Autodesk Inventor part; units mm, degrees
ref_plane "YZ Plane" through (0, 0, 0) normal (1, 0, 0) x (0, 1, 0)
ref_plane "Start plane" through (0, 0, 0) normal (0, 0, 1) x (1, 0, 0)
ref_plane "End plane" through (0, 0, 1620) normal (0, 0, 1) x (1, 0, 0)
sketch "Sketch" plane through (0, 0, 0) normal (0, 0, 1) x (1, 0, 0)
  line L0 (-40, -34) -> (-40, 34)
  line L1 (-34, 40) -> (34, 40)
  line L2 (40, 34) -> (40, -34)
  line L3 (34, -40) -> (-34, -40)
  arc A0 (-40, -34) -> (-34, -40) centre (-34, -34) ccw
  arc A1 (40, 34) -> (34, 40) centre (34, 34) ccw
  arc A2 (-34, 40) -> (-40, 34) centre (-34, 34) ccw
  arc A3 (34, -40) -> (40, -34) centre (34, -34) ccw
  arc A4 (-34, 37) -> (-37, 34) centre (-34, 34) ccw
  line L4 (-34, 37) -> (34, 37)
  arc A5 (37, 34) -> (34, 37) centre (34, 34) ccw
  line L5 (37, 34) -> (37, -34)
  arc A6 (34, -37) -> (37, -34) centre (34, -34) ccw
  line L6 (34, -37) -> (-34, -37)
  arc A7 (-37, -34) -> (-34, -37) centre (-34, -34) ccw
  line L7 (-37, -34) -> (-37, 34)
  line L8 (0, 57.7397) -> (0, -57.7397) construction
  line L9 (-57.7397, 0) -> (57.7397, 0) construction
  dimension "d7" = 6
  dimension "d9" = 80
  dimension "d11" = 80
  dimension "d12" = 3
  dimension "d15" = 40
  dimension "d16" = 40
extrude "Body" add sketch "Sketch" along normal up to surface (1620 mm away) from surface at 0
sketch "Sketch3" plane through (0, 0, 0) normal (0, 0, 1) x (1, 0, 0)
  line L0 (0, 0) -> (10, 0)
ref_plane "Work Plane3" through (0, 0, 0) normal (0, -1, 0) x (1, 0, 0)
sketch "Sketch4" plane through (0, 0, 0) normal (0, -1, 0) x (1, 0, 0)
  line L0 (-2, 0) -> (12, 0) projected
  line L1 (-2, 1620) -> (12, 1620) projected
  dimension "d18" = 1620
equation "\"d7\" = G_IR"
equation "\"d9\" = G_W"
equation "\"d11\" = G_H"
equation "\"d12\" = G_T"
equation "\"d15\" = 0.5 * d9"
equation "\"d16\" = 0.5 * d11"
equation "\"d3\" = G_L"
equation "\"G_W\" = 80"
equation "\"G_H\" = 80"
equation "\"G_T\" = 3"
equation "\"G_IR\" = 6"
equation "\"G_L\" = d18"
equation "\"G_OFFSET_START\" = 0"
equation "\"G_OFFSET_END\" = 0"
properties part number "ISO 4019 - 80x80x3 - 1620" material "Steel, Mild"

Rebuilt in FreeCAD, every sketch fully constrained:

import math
import FreeCAD as App
import Part
import Sketcher
from FreeCAD import Vector

doc = App.newDocument("Part")
body = doc.addObject("PartDesign::Body", "Body")

sketch1 = body.newObject("Sketcher::SketchObject", "Sketch")
sketch1.AttachmentSupport = (doc.getObject("XY_Plane"), [""])
sketch1.MapMode = "FlatFace"
sketch1.addGeometry(Part.LineSegment(Vector(-40, 34, 0), Vector(-40, -34, 0)), False)
sketch1.addGeometry(Part.ArcOfCircle(Part.Circle(Vector(-34, -34, 0), Vector(0, 0, 1), 6), math.radians(180), math.radians(270)), False)
sketch1.addGeometry(Part.LineSegment(Vector(-34, -40, 0), Vector(34, -40, 0)), False)
sketch1.addGeometry(Part.ArcOfCircle(Part.Circle(Vector(34, -34, 0), Vector(0, 0, 1), 6), math.radians(-90), math.radians(0)), False)
sketch1.addGeometry(Part.LineSegment(Vector(40, -34, 0), Vector(40, 34, 0)), False)
sketch1.addGeometry(Part.ArcOfCircle(Part.Circle(Vector(34, 34, 0), Vector(0, 0, 1), 6), math.radians(0), math.radians(90)), False)
sketch1.addGeometry(Part.LineSegment(Vector(34, 40, 0), Vector(-34, 40, 0)), False)
sketch1.addGeometry(Part.ArcOfCircle(Part.Circle(Vector(-34, 34, 0), Vector(0, 0, 1), 6), math.radians(90), math.radians(180)), False)
sketch1.addGeometry(Part.ArcOfCircle(Part.Circle(Vector(-34, 34, 0), Vector(0, 0, 1), 3), math.radians(90), math.radians(180)), False)
sketch1.addGeometry(Part.LineSegment(Vector(-34, 37, 0), Vector(34, 37, 0)), False)
sketch1.addGeometry(Part.ArcOfCircle(Part.Circle(Vector(34, 34, 0), Vector(0, 0, 1), 3), math.radians(0), math.radians(90)), False)
sketch1.addGeometry(Part.LineSegment(Vector(37, 34, 0), Vector(37, -34, 0)), False)
sketch1.addGeometry(Part.ArcOfCircle(Part.Circle(Vector(34, -34, 0), Vector(0, 0, 1), 3), math.radians(-90), math.radians(0)), False)
sketch1.addGeometry(Part.LineSegment(Vector(34, -37, 0), Vector(-34, -37, 0)), False)
sketch1.addGeometry(Part.ArcOfCircle(Part.Circle(Vector(-34, -34, 0), Vector(0, 0, 1), 3), math.radians(180), math.radians(270)), False)
sketch1.addGeometry(Part.LineSegment(Vector(-37, -34, 0), Vector(-37, 34, 0)), False)
sketch1.addConstraint(Sketcher.Constraint("Tangent", 0, 2, 1, 1))
sketch1.addConstraint(Sketcher.Constraint("Tangent", 1, 2, 2, 1))
sketch1.addConstraint(Sketcher.Constraint("Tangent", 2, 2, 3, 1))
sketch1.addConstraint(Sketcher.Constraint("Tangent", 3, 2, 4, 1))
sketch1.addConstraint(Sketcher.Constraint("Tangent", 4, 2, 5, 1))
sketch1.addConstraint(Sketcher.Constraint("Tangent", 5, 2, 6, 1))
sketch1.addConstraint(Sketcher.Constraint("Tangent", 6, 2, 7, 1))
sketch1.addConstraint(Sketcher.Constraint("Tangent", 7, 2, 0, 1))
sketch1.addConstraint(Sketcher.Constraint("Tangent", 8, 1, 9, 1))
sketch1.addConstraint(Sketcher.Constraint("Tangent", 9, 2, 10, 2))
sketch1.addConstraint(Sketcher.Constraint("Tangent", 10, 1, 11, 1))
sketch1.addConstraint(Sketcher.Constraint("Tangent", 11, 2, 12, 2))
sketch1.addConstraint(Sketcher.Constraint("Tangent", 12, 1, 13, 1))
sketch1.addConstraint(Sketcher.Constraint("Tangent", 13, 2, 14, 2))
sketch1.addConstraint(Sketcher.Constraint("Tangent", 14, 1, 15, 1))
sketch1.addConstraint(Sketcher.Constraint("Tangent", 15, 2, 8, 2))
sketch1.addConstraint(Sketcher.Constraint("Vertical", 0))
sketch1.addConstraint(Sketcher.Constraint("Horizontal", 2))
sketch1.addConstraint(Sketcher.Constraint("Vertical", 4))
sketch1.addConstraint(Sketcher.Constraint("Horizontal", 6))
sketch1.addConstraint(Sketcher.Constraint("Horizontal", 9))
sketch1.addConstraint(Sketcher.Constraint("Vertical", 11))
sketch1.addConstraint(Sketcher.Constraint("Horizontal", 13))
sketch1.addConstraint(Sketcher.Constraint("Vertical", 15))
sketch1.addConstraint(Sketcher.Constraint("Coincident", 8, 3, 7, 3))
sketch1.addConstraint(Sketcher.Constraint("Coincident", 10, 3, 5, 3))
sketch1.addConstraint(Sketcher.Constraint("Coincident", 12, 3, 3, 3))
sketch1.addConstraint(Sketcher.Constraint("Equal", 1, 3))
sketch1.addConstraint(Sketcher.Constraint("Equal", 3, 5))
sketch1.addConstraint(Sketcher.Constraint("Equal", 5, 7))
sketch1.addConstraint(Sketcher.Constraint("Equal", 12, 14))
sketch1.addConstraint(Sketcher.Constraint("Symmetric", 1, 3, 5, 3, -1, 1))
sketch1.addConstraint(Sketcher.Constraint("Equal", 13, 0))
sketch1.addConstraint(Sketcher.Constraint("Radius", 1, 6.0))
sketch1.addConstraint(Sketcher.Constraint("Radius", 8, 3.0))
sketch1.addConstraint(Sketcher.Constraint("DistanceX", 0, 2, -1, 1, 40.0))
pad1 = body.newObject("PartDesign::Pad", "Pad")
pad1.Profile = sketch1
pad1.Length = 1620

doc.recompute()
